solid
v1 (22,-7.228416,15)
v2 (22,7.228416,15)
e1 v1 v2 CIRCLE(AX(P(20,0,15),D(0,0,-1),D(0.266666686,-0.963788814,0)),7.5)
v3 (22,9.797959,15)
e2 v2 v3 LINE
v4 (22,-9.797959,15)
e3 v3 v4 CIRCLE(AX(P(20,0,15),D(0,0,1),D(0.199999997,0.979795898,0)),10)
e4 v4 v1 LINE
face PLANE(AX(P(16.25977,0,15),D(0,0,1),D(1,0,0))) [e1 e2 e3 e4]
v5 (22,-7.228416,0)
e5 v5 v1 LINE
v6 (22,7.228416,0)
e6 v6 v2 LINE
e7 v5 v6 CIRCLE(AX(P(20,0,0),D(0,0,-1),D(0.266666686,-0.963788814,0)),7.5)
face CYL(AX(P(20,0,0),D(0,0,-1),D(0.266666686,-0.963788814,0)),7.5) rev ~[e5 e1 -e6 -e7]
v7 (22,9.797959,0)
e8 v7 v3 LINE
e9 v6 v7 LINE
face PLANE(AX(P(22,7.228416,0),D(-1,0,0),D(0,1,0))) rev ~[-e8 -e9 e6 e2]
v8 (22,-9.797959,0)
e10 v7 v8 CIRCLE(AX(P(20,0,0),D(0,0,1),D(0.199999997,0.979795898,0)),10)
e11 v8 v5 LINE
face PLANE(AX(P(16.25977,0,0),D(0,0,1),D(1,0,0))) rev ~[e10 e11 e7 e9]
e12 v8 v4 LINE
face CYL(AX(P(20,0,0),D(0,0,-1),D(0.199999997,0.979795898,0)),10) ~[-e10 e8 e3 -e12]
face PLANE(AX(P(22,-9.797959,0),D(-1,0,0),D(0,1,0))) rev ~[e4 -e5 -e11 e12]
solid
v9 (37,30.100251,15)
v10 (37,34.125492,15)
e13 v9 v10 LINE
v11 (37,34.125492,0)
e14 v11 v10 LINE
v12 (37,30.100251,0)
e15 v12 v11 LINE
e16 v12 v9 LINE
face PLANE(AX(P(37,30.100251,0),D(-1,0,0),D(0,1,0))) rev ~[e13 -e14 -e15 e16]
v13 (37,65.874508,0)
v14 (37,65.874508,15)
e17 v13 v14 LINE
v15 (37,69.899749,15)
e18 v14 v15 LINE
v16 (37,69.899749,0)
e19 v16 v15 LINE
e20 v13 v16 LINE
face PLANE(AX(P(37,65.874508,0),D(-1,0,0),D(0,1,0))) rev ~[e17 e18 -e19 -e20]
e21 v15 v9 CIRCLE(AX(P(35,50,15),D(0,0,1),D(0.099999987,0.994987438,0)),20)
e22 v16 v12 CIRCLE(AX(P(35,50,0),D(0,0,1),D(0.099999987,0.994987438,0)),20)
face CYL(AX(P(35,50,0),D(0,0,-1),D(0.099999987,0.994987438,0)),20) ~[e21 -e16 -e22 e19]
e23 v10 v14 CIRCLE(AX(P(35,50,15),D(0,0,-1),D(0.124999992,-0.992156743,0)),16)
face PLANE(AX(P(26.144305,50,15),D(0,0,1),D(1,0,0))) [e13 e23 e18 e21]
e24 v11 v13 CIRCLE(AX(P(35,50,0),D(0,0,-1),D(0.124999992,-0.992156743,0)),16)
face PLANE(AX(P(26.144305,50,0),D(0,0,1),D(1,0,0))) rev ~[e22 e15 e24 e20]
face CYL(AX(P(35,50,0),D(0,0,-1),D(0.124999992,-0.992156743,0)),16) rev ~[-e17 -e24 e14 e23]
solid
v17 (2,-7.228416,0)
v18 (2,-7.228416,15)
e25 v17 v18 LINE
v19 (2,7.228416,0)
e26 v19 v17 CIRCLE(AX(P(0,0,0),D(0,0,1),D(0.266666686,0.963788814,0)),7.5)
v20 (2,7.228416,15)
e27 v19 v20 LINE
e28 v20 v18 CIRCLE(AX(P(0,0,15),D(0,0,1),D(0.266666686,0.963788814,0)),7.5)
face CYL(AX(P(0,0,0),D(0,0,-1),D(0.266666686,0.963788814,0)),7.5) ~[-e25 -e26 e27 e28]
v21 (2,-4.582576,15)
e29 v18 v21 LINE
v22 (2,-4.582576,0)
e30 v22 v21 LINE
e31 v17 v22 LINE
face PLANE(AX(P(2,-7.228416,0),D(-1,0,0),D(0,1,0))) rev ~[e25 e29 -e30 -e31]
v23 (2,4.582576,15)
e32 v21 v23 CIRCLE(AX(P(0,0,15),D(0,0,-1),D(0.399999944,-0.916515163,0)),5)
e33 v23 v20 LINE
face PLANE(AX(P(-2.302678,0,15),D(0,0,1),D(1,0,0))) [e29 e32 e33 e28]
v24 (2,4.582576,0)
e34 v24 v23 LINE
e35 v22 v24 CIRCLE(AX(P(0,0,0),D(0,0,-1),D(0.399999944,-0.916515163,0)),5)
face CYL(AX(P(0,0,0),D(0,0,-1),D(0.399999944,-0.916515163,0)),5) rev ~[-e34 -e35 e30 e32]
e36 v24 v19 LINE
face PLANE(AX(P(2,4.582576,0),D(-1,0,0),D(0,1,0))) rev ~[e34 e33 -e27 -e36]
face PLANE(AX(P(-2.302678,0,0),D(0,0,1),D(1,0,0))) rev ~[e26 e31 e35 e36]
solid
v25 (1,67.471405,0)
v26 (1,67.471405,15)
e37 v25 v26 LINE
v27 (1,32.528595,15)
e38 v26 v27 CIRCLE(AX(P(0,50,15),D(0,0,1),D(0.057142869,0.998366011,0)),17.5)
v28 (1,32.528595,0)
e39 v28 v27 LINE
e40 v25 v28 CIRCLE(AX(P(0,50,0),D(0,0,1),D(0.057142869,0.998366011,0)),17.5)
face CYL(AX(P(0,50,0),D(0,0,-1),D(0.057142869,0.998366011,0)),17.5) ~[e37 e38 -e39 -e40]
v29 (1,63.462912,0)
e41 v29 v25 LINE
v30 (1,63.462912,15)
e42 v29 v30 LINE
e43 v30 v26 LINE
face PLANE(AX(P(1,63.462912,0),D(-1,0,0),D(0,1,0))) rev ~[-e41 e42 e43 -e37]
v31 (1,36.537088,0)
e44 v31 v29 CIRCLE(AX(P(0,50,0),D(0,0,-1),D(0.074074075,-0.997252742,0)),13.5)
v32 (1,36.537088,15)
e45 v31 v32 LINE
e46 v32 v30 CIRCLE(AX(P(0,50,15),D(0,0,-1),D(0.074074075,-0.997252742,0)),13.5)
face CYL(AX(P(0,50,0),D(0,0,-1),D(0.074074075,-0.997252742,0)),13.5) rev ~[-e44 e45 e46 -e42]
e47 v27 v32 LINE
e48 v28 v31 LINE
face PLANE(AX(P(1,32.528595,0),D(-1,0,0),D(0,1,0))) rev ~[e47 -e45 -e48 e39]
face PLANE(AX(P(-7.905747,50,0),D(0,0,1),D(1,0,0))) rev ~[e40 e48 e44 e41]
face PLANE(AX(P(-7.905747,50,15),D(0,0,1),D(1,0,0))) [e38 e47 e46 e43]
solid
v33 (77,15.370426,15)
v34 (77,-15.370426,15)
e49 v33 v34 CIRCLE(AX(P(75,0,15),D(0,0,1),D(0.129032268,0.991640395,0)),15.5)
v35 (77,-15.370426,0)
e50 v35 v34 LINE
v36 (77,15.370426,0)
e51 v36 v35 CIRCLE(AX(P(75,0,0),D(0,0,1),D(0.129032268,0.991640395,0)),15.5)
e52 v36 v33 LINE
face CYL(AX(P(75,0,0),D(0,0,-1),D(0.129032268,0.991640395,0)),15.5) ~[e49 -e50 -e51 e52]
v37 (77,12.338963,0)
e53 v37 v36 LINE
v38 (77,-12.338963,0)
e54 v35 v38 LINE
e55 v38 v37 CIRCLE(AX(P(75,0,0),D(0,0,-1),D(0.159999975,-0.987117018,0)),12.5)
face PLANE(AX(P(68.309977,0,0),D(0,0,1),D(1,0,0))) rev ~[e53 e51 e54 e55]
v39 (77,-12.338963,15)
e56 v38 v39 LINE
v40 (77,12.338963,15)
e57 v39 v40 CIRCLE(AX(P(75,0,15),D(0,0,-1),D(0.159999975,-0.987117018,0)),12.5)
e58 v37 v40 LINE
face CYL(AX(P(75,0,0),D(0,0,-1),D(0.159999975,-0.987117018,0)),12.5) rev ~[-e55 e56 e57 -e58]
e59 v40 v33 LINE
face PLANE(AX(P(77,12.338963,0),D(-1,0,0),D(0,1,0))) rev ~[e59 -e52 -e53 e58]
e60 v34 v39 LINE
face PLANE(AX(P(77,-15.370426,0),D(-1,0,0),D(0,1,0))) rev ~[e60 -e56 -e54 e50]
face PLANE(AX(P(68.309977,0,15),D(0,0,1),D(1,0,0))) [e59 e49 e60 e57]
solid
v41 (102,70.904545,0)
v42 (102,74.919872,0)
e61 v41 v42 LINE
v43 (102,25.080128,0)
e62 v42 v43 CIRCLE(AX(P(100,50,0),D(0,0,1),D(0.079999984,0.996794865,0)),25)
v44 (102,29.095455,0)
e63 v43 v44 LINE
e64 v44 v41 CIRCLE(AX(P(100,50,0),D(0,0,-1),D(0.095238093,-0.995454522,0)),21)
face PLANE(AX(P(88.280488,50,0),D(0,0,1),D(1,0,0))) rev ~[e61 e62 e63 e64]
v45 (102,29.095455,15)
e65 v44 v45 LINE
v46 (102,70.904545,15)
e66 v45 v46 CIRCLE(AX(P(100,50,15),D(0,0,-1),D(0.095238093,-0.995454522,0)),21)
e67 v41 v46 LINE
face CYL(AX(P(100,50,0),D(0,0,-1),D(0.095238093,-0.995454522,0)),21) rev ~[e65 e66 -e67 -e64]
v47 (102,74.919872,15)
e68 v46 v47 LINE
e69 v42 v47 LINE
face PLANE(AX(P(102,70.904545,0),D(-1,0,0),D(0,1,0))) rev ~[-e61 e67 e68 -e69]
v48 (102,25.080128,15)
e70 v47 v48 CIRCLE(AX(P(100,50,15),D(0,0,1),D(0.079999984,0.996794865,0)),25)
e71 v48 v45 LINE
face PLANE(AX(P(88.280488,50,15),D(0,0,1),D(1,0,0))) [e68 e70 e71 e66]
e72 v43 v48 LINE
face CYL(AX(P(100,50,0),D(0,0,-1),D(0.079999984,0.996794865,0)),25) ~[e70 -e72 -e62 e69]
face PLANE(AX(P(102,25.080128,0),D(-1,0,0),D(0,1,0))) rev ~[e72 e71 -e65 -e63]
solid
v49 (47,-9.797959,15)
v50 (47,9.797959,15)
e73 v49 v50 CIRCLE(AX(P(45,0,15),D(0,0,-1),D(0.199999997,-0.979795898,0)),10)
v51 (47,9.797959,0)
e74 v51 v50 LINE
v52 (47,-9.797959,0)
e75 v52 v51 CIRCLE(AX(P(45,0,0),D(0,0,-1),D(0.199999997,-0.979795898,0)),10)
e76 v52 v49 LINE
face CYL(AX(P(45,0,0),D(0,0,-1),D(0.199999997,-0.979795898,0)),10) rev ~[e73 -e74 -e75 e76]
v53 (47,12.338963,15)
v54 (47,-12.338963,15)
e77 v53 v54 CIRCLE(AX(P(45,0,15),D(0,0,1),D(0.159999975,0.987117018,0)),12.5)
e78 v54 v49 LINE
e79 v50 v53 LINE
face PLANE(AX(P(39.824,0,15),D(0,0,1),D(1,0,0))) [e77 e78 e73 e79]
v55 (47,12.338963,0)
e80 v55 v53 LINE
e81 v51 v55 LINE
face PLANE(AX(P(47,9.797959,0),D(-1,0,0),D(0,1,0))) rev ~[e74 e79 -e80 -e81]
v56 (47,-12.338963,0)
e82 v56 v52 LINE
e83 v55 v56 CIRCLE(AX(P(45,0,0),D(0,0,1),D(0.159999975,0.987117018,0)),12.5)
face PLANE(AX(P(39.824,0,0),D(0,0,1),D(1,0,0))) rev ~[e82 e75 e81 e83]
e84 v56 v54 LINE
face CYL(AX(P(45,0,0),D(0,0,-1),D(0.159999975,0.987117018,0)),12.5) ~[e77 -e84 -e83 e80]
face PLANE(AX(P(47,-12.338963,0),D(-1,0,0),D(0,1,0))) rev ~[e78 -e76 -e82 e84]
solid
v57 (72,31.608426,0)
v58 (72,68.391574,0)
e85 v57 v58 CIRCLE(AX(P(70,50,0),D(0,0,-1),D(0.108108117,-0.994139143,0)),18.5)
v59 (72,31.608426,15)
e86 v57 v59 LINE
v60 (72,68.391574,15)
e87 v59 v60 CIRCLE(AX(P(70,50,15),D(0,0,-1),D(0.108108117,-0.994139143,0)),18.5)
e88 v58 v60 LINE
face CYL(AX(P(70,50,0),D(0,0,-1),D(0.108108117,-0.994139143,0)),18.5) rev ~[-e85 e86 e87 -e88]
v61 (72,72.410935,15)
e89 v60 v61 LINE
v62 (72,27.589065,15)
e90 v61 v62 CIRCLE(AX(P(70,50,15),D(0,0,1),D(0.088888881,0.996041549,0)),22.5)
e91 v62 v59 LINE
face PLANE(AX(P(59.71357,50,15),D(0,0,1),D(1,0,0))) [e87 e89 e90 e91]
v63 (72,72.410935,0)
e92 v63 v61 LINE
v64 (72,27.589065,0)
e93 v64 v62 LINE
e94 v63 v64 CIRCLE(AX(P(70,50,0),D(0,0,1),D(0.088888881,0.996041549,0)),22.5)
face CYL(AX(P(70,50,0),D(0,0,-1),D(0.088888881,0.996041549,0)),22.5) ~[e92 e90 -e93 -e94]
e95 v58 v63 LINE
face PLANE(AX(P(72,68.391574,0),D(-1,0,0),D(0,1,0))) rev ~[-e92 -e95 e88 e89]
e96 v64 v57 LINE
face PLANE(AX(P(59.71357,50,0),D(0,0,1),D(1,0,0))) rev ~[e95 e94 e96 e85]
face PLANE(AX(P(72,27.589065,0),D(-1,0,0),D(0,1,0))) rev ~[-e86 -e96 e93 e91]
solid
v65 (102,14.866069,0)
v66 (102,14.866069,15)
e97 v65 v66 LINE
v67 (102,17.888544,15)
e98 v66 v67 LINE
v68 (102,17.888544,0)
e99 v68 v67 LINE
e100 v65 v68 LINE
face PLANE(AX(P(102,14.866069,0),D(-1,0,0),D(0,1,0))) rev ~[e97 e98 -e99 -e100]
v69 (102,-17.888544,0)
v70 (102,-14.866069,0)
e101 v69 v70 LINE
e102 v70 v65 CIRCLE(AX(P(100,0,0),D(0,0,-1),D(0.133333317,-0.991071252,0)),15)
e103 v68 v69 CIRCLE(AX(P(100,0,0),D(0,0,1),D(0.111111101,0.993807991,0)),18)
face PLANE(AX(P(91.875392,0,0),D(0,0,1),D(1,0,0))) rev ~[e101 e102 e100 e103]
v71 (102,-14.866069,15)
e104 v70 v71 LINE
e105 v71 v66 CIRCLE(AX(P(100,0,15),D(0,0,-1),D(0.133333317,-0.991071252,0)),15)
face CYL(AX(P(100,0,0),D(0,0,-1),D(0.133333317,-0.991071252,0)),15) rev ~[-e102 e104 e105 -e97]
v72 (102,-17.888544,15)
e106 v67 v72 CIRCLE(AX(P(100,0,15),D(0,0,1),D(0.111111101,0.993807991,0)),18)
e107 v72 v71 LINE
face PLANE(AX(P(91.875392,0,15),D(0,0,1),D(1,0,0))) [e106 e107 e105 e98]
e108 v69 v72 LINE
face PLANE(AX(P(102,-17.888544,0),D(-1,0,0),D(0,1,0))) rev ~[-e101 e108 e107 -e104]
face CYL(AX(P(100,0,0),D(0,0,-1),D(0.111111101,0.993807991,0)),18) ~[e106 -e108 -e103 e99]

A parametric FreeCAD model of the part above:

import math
import FreeCAD as App
import Part
import Sketcher
from FreeCAD import Vector
Q = App.Units.Quantity

doc = App.newDocument("Part")
body = doc.addObject("PartDesign::Body", "Body")
body.AllowCompound = True

# Sketch on XY plane
sketch1 = body.newObject("Sketcher::SketchObject", "Sketch")
sketch1.AttachmentSupport = (doc.getObject("XY_Plane"), [""])
sketch1.MapMode = "FlatFace"
sketch1.addGeometry([
    Part.ArcOfCircle(Part.Circle(Vector(0, 0, 0), Vector(0, 0, 1), 5), math.radians(66), math.radians(294)),  # 0
    Part.LineSegment(Vector(2, 4.6, 0), Vector(2, 7.2, 0)),  # 1
    Part.ArcOfCircle(Part.Circle(Vector(0, 0, 0), Vector(0, 0, 1), 7.5), math.radians(75), math.radians(285)),  # 2
    Part.LineSegment(Vector(2, -7.2, 0), Vector(2, -4.6, 0)),  # 3
    Part.ArcOfCircle(Part.Circle(Vector(20, 0, 0), Vector(0, 0, 1), 7.5), math.radians(75), math.radians(285)),  # 4
    Part.LineSegment(Vector(22, 7.2, 0), Vector(22, 9.8, 0)),  # 5
    Part.ArcOfCircle(Part.Circle(Vector(20, 0, 0), Vector(0, 0, 1), 10), math.radians(78), math.radians(282)),  # 6
    Part.LineSegment(Vector(22, -9.8, 0), Vector(22, -7.2, 0)),  # 7
    Part.ArcOfCircle(Part.Circle(Vector(45, 0, 0), Vector(0, 0, 1), 10), math.radians(78), math.radians(282)),  # 8
    Part.LineSegment(Vector(47, 9.8, 0), Vector(47, 12.3, 0)),  # 9
    Part.ArcOfCircle(Part.Circle(Vector(45, 0, 0), Vector(0, 0, 1), 12.5), math.radians(81), math.radians(279)),  # 10
    Part.LineSegment(Vector(47, -12.3, 0), Vector(47, -9.8, 0)),  # 11
    Part.ArcOfCircle(Part.Circle(Vector(75, 0, 0), Vector(0, 0, 1), 12.5), math.radians(81), math.radians(279)),  # 12
    Part.LineSegment(Vector(77, 12.3, 0), Vector(77, 15.4, 0)),  # 13
    Part.ArcOfCircle(Part.Circle(Vector(75, 0, 0), Vector(0, 0, 1), 15.5), math.radians(83), math.radians(277)),  # 14
    Part.LineSegment(Vector(77, -15.4, 0), Vector(77, -12.3, 0)),  # 15
    Part.LineSegment(Vector(1, 63.5, 0), Vector(1, 67.5, 0)),  # 16
    Part.ArcOfCircle(Part.Circle(Vector(0, 50, 0), Vector(0, 0, 1), 17.5), math.radians(87), math.radians(273)),  # 17
    Part.LineSegment(Vector(1, 32.5, 0), Vector(1, 36.5, 0)),  # 18
    Part.ArcOfCircle(Part.Circle(Vector(0, 50, 0), Vector(0, 0, 1), 13.5), math.radians(86), math.radians(274)),  # 19
    Part.LineSegment(Vector(37, 65.9, 0), Vector(37, 69.9, 0)),  # 20
    Part.ArcOfCircle(Part.Circle(Vector(35, 50, 0), Vector(0, 0, 1), 20), math.radians(84), math.radians(276)),  # 21
    Part.LineSegment(Vector(37, 30.1, 0), Vector(37, 34.1, 0)),  # 22
    Part.ArcOfCircle(Part.Circle(Vector(35, 50, 0), Vector(0, 0, 1), 16), math.radians(83), math.radians(277)),  # 23
    Part.LineSegment(Vector(72, 68.4, 0), Vector(72, 72.4, 0)),  # 24
    Part.ArcOfCircle(Part.Circle(Vector(70, 50, 0), Vector(0, 0, 1), 22.5), math.radians(85), math.radians(275)),  # 25
    Part.LineSegment(Vector(72, 27.6, 0), Vector(72, 31.6, 0)),  # 26
    Part.ArcOfCircle(Part.Circle(Vector(70, 50, 0), Vector(0, 0, 1), 18.5), math.radians(84), math.radians(276)),  # 27
    Part.LineSegment(Vector(102, 14.9, 0), Vector(102, 17.9, 0)),  # 28
    Part.ArcOfCircle(Part.Circle(Vector(100, 0, 0), Vector(0, 0, 1), 18), math.radians(84), math.radians(276)),  # 29
    Part.LineSegment(Vector(102, -17.9, 0), Vector(102, -14.9, 0)),  # 30
    Part.ArcOfCircle(Part.Circle(Vector(100, 0, 0), Vector(0, 0, 1), 15), math.radians(82), math.radians(278)),  # 31
    Part.LineSegment(Vector(102, 70.9, 0), Vector(102, 74.9, 0)),  # 32
    Part.ArcOfCircle(Part.Circle(Vector(100, 50, 0), Vector(0, 0, 1), 25), math.radians(85), math.radians(275)),  # 33
    Part.LineSegment(Vector(102, 25.1, 0), Vector(102, 29.1, 0)),  # 34
    Part.ArcOfCircle(Part.Circle(Vector(100, 50, 0), Vector(0, 0, 1), 21), math.radians(85), math.radians(275)),  # 35
], False)
sketch1.addConstraint([
    Sketcher.Constraint("Coincident", 0, 1, 1, 1),
    Sketcher.Constraint("Coincident", 1, 2, 2, 1),
    Sketcher.Constraint("Coincident", 2, 2, 3, 1),
    Sketcher.Constraint("Coincident", 3, 2, 0, 2),
    Sketcher.Constraint("Coincident", 4, 1, 5, 1),
    Sketcher.Constraint("Coincident", 5, 2, 6, 1),
    Sketcher.Constraint("Coincident", 6, 2, 7, 1),
    Sketcher.Constraint("Coincident", 7, 2, 4, 2),
    Sketcher.Constraint("Coincident", 8, 1, 9, 1),
    Sketcher.Constraint("Coincident", 9, 2, 10, 1),
    Sketcher.Constraint("Coincident", 10, 2, 11, 1),
    Sketcher.Constraint("Coincident", 11, 2, 8, 2),
    Sketcher.Constraint("Coincident", 12, 1, 13, 1),
    Sketcher.Constraint("Coincident", 13, 2, 14, 1),
    Sketcher.Constraint("Coincident", 14, 2, 15, 1),
    Sketcher.Constraint("Coincident", 15, 2, 12, 2),
    Sketcher.Constraint("Coincident", 16, 2, 17, 1),
    Sketcher.Constraint("Coincident", 17, 2, 18, 1),
    Sketcher.Constraint("Coincident", 18, 2, 19, 2),
    Sketcher.Constraint("Coincident", 19, 1, 16, 1),
    Sketcher.Constraint("Coincident", 20, 2, 21, 1),
    Sketcher.Constraint("Coincident", 21, 2, 22, 1),
    Sketcher.Constraint("Coincident", 22, 2, 23, 2),
    Sketcher.Constraint("Coincident", 23, 1, 20, 1),
    Sketcher.Constraint("Coincident", 24, 2, 25, 1),
    Sketcher.Constraint("Coincident", 25, 2, 26, 1),
    Sketcher.Constraint("Coincident", 26, 2, 27, 2),
    Sketcher.Constraint("Coincident", 27, 1, 24, 1),
    Sketcher.Constraint("Coincident", 28, 2, 29, 1),
    Sketcher.Constraint("Coincident", 29, 2, 30, 1),
    Sketcher.Constraint("Coincident", 30, 2, 31, 2),
    Sketcher.Constraint("Coincident", 31, 1, 28, 1),
    Sketcher.Constraint("Coincident", 32, 2, 33, 1),
    Sketcher.Constraint("Coincident", 33, 2, 34, 1),
    Sketcher.Constraint("Coincident", 34, 2, 35, 2),
    Sketcher.Constraint("Coincident", 35, 1, 32, 1),
    Sketcher.Constraint("Vertical", 1),
    Sketcher.Constraint("Vertical", 3),
    Sketcher.Constraint("Vertical", 5),
    Sketcher.Constraint("Vertical", 7),
    Sketcher.Constraint("Vertical", 9),
    Sketcher.Constraint("Vertical", 11),
    Sketcher.Constraint("Vertical", 13),
    Sketcher.Constraint("Vertical", 15),
    Sketcher.Constraint("Vertical", 16),
    Sketcher.Constraint("Vertical", 18),
    Sketcher.Constraint("Vertical", 20),
    Sketcher.Constraint("Vertical", 22),
    Sketcher.Constraint("Vertical", 24),
    Sketcher.Constraint("Vertical", 26),
    Sketcher.Constraint("Vertical", 28),
    Sketcher.Constraint("Vertical", 30),
    Sketcher.Constraint("Vertical", 32),
    Sketcher.Constraint("Vertical", 34),
    Sketcher.Constraint("Coincident", 0, 3, -1, 1),
    Sketcher.Constraint("Coincident", 2, 3, -1, 1),
    Sketcher.Constraint("Coincident", 6, 3, 4, 3),
    Sketcher.Constraint("Coincident", 10, 3, 8, 3),
    Sketcher.Constraint("Coincident", 14, 3, 12, 3),
    Sketcher.Constraint("Coincident", 19, 3, 17, 3),
    Sketcher.Constraint("Coincident", 23, 3, 21, 3),
    Sketcher.Constraint("Coincident", 27, 3, 25, 3),
    Sketcher.Constraint("Coincident", 31, 3, 29, 3),
    Sketcher.Constraint("Coincident", 35, 3, 33, 3),
    Sketcher.Constraint("Equal", 2, 4),
    Sketcher.Constraint("Equal", 6, 8),
    Sketcher.Constraint("Equal", 10, 12),
    Sketcher.Constraint("Symmetric", 5, 2, 6, 2, -1),
    Sketcher.Constraint("Symmetric", 9, 2, 10, 2, -1),
    Sketcher.Constraint("Symmetric", 13, 2, 14, 2, -1),
    Sketcher.Constraint("Symmetric", 28, 2, 29, 2, -1),
    Sketcher.Constraint("PointOnObject", 17, 3, -2),
    Sketcher.Constraint("Horizontal", 19, 3, 21, 3),
    Sketcher.Constraint("Horizontal", 23, 3, 25, 3),
    Sketcher.Constraint("Horizontal", 27, 3, 33, 3),
    Sketcher.Constraint("Horizontal", 1, 2, 4, 1),
    Sketcher.Constraint("Horizontal", 2, 2, 7, 2),
    Sketcher.Constraint("Horizontal", 5, 2, 8, 1),
    Sketcher.Constraint("Horizontal", 9, 2, 12, 1),
    Sketcher.Constraint("Vertical", 31, 3, 33, 3),
    Sketcher.Constraint("Vertical", 16, 2, 17, 2),
    Sketcher.Constraint("Vertical", 20, 2, 21, 2),
    Sketcher.Constraint("Vertical", 24, 2, 25, 2),
    Sketcher.Constraint("Vertical", 31, 1, 32, 2),
    Sketcher.Constraint("Vertical", 32, 2, 33, 2),
    Sketcher.Constraint("Radius", 0, Q("5 mm")),
    Sketcher.Constraint("Radius", 6, Q("10 mm")),
    Sketcher.Constraint("Radius", 21, Q("20 mm")),
    Sketcher.Constraint("Radius", 23, Q("16 mm")),
    Sketcher.Constraint("Radius", 29, Q("18 mm")),
    Sketcher.Constraint("Radius", 31, Q("15 mm")),
    Sketcher.Constraint("Radius", 33, Q("25 mm")),
    Sketcher.Constraint("Radius", 35, Q("21 mm")),
    Sketcher.Constraint("Radius", 2, Q("7.5 mm")),
    Sketcher.Constraint("Radius", 10, Q("12.5 mm")),
    Sketcher.Constraint("Radius", 14, Q("15.5 mm")),
    Sketcher.Constraint("Radius", 17, Q("17.5 mm")),
    Sketcher.Constraint("Radius", 19, Q("13.5 mm")),
    Sketcher.Constraint("Radius", 25, Q("22.5 mm")),
    Sketcher.Constraint("Radius", 27, Q("18.5 mm")),
    Sketcher.Constraint("DistanceX", -1, 1, 4, 3, Q("20 mm")),
    Sketcher.Constraint("DistanceX", -1, 1, 8, 3, Q("45 mm")),
    Sketcher.Constraint("DistanceX", -1, 1, 12, 3, Q("75 mm")),
    Sketcher.Constraint("DistanceY", -1, 1, 17, 3, Q("50 mm")),
    Sketcher.Constraint("DistanceX", -1, 1, 21, 3, Q("35 mm")),
    Sketcher.Constraint("DistanceX", -1, 1, 25, 3, Q("70 mm")),
    Sketcher.Constraint("DistanceX", -1, 1, 29, 3, Q("100 mm")),
    Sketcher.Constraint("DistanceX", -1, 1, 0, 1, Q("2 mm")),
    Sketcher.Constraint("DistanceX", -1, 1, 16, 2, Q("1 mm")),
    Sketcher.Constraint("DistanceX", -1, 1, 20, 2, Q("37 mm")),
    Sketcher.Constraint("DistanceX", -1, 1, 24, 2, Q("72 mm")),
    Sketcher.Constraint("DistanceX", -1, 1, 28, 2, Q("102 mm")),
])
pad1 = body.newObject("PartDesign::Pad", "Pad")
pad1.Profile = sketch1
pad1.Length = 15

doc.recompute()
